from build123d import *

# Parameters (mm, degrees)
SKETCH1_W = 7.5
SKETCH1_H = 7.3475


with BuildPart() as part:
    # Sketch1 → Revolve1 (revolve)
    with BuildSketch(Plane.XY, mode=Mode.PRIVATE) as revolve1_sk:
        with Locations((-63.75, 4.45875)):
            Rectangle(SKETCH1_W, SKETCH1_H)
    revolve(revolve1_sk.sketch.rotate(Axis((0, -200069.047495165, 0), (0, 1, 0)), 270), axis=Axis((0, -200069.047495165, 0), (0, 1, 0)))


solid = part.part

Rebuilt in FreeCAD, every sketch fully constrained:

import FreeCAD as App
import Part
import Sketcher

V = App.Vector
Q = App.Units.Quantity

doc = App.newDocument("Part")
body = doc.addObject("PartDesign::Body", "Body")

# Sketch on XY plane
sketch1 = body.newObject("Sketcher::SketchObject", "Sketch")
sketch1.AttachmentSupport = (doc.getObject("XY_Plane"), [""])
sketch1.MapMode = "FlatFace"
sketch1.addGeometry([
    Part.LineSegment(V(-68, 8, 0), V(-68, 1, 0)),
    Part.LineSegment(V(-68, 1, 0), V(-60, 1, 0)),
    Part.LineSegment(V(-60, 1, 0), V(-60, 8, 0)),
    Part.LineSegment(V(-60, 8, 0), V(-68, 8, 0)),
], False)
sketch1.addConstraint([
    Sketcher.Constraint("Coincident", 0, 2, 1, 1),
    Sketcher.Constraint("Coincident", 1, 2, 2, 1),
    Sketcher.Constraint("Coincident", 2, 2, 3, 1),
    Sketcher.Constraint("Coincident", 3, 2, 0, 1),
    Sketcher.Constraint("Vertical", 0),
    Sketcher.Constraint("Horizontal", 1),
    Sketcher.Constraint("Vertical", 2),
    Sketcher.Constraint("Horizontal", 3),
    Sketcher.Constraint("DistanceX", 1, 1, 1, 2, Q("7.5 mm")),
    Sketcher.Constraint("DistanceX", 1, 2, -1, 1, Q("60 mm")),
    Sketcher.Constraint("DistanceY", 0, 2, 0, 1, Q("7.3475 mm")),
    Sketcher.Constraint("DistanceY", -1, 1, 0, 2, Q("0.785 mm")),
])
revolution = body.newObject("PartDesign::Revolution", "Revolution")
revolution.Profile = sketch1
revolution.ReferenceAxis = (sketch1, ["V_Axis"])
revolution.Angle = 360

doc.recompute()
